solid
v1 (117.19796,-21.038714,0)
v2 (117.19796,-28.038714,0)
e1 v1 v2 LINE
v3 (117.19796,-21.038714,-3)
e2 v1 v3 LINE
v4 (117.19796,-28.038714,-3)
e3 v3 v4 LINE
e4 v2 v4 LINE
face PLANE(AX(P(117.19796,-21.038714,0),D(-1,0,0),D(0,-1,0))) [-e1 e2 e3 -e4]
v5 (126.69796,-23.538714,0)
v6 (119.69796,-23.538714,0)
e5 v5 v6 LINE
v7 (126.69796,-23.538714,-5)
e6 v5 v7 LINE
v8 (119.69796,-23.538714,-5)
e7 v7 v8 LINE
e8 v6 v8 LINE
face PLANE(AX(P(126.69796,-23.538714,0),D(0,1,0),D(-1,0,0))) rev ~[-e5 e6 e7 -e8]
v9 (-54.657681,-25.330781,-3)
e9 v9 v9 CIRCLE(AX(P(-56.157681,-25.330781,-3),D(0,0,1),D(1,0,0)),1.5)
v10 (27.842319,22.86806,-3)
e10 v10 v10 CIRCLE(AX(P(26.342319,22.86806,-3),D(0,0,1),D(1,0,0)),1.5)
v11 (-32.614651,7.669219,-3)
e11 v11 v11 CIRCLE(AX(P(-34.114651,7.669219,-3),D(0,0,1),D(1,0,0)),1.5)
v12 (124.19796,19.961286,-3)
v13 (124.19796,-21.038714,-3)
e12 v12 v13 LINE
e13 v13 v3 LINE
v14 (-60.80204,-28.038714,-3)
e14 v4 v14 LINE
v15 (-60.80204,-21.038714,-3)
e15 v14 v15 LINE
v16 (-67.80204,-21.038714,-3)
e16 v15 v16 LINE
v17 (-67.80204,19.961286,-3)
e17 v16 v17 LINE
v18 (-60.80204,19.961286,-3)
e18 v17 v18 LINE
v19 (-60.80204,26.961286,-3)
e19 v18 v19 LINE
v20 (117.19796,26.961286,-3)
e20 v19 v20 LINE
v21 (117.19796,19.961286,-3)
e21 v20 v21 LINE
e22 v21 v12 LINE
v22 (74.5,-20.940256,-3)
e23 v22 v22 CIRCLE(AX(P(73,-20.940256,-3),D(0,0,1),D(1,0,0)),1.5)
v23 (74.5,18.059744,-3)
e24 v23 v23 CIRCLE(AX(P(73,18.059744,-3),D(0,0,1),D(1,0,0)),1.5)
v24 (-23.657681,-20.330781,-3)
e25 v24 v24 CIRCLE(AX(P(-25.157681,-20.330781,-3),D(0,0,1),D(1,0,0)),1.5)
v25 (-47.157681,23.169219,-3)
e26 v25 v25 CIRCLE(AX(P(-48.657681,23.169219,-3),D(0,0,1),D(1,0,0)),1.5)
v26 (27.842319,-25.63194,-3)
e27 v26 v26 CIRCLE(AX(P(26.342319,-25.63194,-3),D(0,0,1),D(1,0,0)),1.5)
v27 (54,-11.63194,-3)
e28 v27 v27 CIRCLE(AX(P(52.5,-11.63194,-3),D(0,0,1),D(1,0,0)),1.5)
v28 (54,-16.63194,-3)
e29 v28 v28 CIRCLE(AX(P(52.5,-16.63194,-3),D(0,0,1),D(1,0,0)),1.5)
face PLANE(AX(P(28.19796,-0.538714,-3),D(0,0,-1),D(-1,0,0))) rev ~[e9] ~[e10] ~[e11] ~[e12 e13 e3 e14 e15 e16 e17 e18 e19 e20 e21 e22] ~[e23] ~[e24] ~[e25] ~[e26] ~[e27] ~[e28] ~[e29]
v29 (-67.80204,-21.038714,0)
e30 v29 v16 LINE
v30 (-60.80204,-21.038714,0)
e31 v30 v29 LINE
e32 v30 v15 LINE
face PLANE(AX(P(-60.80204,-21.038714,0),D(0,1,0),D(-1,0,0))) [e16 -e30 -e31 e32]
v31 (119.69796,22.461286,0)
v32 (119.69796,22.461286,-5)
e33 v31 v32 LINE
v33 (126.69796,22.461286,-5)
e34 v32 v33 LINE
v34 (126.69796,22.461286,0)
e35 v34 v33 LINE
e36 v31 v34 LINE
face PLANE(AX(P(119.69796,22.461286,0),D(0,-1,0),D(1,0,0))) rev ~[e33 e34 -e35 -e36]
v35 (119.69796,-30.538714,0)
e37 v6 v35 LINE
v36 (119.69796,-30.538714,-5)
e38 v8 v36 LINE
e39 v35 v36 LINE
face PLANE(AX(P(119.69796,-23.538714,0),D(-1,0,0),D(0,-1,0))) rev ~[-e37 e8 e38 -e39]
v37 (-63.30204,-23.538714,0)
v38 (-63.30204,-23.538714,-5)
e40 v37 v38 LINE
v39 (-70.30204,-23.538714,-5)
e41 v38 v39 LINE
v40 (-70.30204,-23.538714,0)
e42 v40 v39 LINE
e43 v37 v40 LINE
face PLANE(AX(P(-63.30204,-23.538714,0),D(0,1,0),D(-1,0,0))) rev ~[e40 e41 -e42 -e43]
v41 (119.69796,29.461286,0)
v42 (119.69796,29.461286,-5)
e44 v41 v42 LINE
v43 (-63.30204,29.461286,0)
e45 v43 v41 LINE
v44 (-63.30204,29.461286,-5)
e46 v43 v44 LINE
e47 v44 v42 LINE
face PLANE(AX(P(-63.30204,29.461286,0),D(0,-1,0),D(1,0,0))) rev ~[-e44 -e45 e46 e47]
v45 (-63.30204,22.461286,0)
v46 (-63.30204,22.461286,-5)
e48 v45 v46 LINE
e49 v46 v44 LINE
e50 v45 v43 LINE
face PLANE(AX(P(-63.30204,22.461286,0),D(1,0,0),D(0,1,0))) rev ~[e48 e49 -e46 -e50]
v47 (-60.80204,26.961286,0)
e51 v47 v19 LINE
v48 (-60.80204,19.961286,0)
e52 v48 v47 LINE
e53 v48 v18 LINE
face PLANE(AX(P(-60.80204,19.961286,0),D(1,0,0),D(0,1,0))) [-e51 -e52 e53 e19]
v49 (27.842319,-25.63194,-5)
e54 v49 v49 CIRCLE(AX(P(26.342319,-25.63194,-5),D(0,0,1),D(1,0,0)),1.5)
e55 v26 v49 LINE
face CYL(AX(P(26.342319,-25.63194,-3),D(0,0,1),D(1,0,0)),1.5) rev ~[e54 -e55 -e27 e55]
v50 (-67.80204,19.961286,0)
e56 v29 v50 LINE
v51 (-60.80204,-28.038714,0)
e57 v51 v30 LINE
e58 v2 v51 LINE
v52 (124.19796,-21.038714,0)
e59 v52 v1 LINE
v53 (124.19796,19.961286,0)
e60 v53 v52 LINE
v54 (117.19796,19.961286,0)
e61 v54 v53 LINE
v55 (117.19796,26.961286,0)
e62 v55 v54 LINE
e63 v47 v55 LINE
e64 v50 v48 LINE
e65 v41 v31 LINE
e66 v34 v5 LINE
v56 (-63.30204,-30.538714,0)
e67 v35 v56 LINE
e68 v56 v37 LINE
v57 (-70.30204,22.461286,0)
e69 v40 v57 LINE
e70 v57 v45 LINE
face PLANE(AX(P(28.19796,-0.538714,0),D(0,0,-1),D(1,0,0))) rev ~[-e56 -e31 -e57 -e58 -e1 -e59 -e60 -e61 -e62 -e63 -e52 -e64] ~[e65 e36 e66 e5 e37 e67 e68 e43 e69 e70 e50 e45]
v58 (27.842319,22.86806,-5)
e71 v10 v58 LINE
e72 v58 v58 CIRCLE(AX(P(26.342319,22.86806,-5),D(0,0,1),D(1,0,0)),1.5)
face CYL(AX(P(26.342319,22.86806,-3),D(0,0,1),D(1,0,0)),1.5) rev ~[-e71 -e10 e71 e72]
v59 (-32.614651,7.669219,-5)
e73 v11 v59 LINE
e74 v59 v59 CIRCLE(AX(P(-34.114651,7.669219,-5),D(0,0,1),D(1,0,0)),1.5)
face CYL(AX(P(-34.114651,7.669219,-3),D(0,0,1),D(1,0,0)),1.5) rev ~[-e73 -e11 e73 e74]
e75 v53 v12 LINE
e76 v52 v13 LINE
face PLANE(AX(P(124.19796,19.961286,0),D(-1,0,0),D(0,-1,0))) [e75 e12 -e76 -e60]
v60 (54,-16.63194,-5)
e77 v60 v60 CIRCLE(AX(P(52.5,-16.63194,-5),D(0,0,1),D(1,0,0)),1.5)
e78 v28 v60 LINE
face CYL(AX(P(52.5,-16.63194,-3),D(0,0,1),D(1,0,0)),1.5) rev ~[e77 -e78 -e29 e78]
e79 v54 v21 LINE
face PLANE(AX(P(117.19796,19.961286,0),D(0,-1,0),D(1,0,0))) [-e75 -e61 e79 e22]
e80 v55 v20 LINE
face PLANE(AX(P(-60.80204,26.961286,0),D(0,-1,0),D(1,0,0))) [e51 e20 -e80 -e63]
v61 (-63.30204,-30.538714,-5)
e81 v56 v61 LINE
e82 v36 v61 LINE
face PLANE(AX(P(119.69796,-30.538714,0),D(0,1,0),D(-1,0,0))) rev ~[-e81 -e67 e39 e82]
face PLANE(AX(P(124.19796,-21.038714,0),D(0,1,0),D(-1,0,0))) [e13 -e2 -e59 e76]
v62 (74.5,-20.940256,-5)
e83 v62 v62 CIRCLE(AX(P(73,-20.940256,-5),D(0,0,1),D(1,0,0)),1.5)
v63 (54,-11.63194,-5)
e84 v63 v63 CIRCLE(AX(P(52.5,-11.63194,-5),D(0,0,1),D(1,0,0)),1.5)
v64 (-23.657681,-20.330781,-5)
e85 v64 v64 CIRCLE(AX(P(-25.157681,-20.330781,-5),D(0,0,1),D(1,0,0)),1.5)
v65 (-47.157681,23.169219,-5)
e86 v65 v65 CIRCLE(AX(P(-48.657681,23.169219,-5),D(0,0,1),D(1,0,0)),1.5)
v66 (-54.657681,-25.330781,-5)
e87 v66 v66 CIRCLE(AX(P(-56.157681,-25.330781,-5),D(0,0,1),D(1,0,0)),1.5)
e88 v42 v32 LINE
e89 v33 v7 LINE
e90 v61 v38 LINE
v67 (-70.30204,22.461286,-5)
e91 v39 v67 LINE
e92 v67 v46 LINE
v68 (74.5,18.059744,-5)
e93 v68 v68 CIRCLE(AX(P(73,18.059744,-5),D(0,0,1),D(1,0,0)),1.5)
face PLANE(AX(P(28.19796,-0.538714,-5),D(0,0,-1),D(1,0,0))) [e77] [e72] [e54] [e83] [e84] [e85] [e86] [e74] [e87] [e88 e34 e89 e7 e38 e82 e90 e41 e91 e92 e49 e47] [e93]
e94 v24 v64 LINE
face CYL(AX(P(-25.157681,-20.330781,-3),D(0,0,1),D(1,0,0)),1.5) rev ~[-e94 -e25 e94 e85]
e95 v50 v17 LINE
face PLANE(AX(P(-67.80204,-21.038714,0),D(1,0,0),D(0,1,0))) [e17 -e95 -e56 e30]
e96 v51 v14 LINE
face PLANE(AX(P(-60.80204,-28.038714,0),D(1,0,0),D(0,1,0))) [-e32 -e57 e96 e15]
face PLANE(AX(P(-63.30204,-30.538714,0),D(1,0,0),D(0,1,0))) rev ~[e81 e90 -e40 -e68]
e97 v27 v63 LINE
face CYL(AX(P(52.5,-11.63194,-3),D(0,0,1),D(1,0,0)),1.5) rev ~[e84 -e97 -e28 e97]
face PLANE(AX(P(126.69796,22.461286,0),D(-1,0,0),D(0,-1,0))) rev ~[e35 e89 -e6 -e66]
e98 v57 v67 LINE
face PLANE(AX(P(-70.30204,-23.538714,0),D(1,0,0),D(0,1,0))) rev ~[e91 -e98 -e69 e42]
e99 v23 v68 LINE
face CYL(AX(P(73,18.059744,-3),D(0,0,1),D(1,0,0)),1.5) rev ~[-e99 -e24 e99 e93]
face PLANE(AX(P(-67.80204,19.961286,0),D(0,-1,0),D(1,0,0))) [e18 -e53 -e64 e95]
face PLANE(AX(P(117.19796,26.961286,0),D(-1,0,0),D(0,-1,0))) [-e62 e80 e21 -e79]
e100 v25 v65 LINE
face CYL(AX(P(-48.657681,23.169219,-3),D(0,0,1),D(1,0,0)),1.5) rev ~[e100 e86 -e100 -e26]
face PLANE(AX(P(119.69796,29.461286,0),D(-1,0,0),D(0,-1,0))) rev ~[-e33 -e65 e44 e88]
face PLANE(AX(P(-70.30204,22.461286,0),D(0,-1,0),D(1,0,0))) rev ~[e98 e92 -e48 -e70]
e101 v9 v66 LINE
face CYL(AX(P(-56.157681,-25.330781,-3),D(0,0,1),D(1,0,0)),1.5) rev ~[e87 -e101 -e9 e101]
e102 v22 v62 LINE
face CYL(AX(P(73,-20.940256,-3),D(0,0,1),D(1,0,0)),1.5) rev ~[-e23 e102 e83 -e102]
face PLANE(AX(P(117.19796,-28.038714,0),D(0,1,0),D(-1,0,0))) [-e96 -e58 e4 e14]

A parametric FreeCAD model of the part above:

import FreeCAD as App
import Part
import Sketcher

doc = App.newDocument("Part")
params = doc.addObject("Spreadsheet::Sheet", "Params")
for row, (alias, value) in enumerate([
    ("sketch1_width", "7 mm"),
    ("sketch1_width2", "183 mm"),
    ("sketch1_height", "46 mm"),
    ("pad1_length", "5 mm"),
    ("sketch2_width", "178 mm"),
    ("sketch2_width2", "7 mm"),
    ("sketch2_height", "41 mm"),
    ("pocket1_length", "3 mm"),
    ("sketch3_diameter", "3 mm"),
    ("pocket2_length", "10 mm"),
], start=1):
    params.set(f"A{row}", alias)
    params.set(f"B{row}", "=" + value)
    params.setAlias(f"B{row}", alias)

body = doc.addObject("PartDesign::Body", "Body")

# Sketch on XY plane
sketch1 = doc.addObject("Sketcher::SketchObject", "Sketch")
body.addObject(sketch1)
sketch1.AttachmentSupport = (doc.XY_Plane, [""])
sketch1.MapMode = "FlatFace"
sketch1.addGeometry(Part.LineSegment(App.Vector(-63.30204, -23.538714, 0), App.Vector(-70.30204, -23.538714, 0)), False)
sketch1.addGeometry(Part.LineSegment(App.Vector(-70.30204, -23.538714, 0), App.Vector(-70.30204, 22.461286, 0)), False)
sketch1.addGeometry(Part.LineSegment(App.Vector(-70.30204, 22.461286, 0), App.Vector(-63.30204, 22.461286, 0)), False)
sketch1.addGeometry(Part.LineSegment(App.Vector(-63.30204, 22.461286, 0), App.Vector(-63.30204, 29.461286, 0)), False)
sketch1.addGeometry(Part.LineSegment(App.Vector(-63.30204, 29.461286, 0), App.Vector(119.69796, 29.461286, 0)), False)
sketch1.addGeometry(Part.LineSegment(App.Vector(119.69796, 29.461286, 0), App.Vector(119.69796, 22.461286, 0)), False)
sketch1.addGeometry(Part.LineSegment(App.Vector(119.69796, 22.461286, 0), App.Vector(126.69796, 22.461286, 0)), False)
sketch1.addGeometry(Part.LineSegment(App.Vector(126.69796, 22.461286, 0), App.Vector(126.69796, -23.538714, 0)), False)
sketch1.addGeometry(Part.LineSegment(App.Vector(126.69796, -23.538714, 0), App.Vector(119.69796, -23.538714, 0)), False)
sketch1.addGeometry(Part.LineSegment(App.Vector(119.69796, -23.538714, 0), App.Vector(119.69796, -30.538714, 0)), False)
sketch1.addGeometry(Part.LineSegment(App.Vector(119.69796, -30.538714, 0), App.Vector(-63.30204, -30.538714, 0)), False)
sketch1.addGeometry(Part.LineSegment(App.Vector(-63.30204, -30.538714, 0), App.Vector(-63.30204, -23.538714, 0)), False)
sketch1.addConstraint(Sketcher.Constraint("Coincident", 0, 2, 1, 1))
sketch1.addConstraint(Sketcher.Constraint("Coincident", 1, 2, 2, 1))
sketch1.addConstraint(Sketcher.Constraint("Coincident", 2, 2, 3, 1))
sketch1.addConstraint(Sketcher.Constraint("Coincident", 3, 2, 4, 1))
sketch1.addConstraint(Sketcher.Constraint("Coincident", 4, 2, 5, 1))
sketch1.addConstraint(Sketcher.Constraint("Coincident", 5, 2, 6, 1))
sketch1.addConstraint(Sketcher.Constraint("Coincident", 6, 2, 7, 1))
sketch1.addConstraint(Sketcher.Constraint("Coincident", 7, 2, 8, 1))
sketch1.addConstraint(Sketcher.Constraint("Coincident", 8, 2, 9, 1))
sketch1.addConstraint(Sketcher.Constraint("Coincident", 9, 2, 10, 1))
sketch1.addConstraint(Sketcher.Constraint("Coincident", 10, 2, 11, 1))
sketch1.addConstraint(Sketcher.Constraint("Coincident", 11, 2, 0, 1))
sketch1.addConstraint(Sketcher.Constraint("Horizontal", 0))
sketch1.addConstraint(Sketcher.Constraint("Vertical", 1))
sketch1.addConstraint(Sketcher.Constraint("Horizontal", 2))
sketch1.addConstraint(Sketcher.Constraint("Vertical", 3))
sketch1.addConstraint(Sketcher.Constraint("Horizontal", 4))
sketch1.addConstraint(Sketcher.Constraint("Vertical", 5))
sketch1.addConstraint(Sketcher.Constraint("Horizontal", 6))
sketch1.addConstraint(Sketcher.Constraint("Vertical", 7))
sketch1.addConstraint(Sketcher.Constraint("Horizontal", 8))
sketch1.addConstraint(Sketcher.Constraint("Vertical", 9))
sketch1.addConstraint(Sketcher.Constraint("Horizontal", 10))
sketch1.addConstraint(Sketcher.Constraint("Vertical", 11))
sketch1.addConstraint(Sketcher.Constraint("Horizontal", 2, 2, 5, 2))
sketch1.addConstraint(Sketcher.Constraint("Horizontal", 0, 2, 7, 2))
sketch1.addConstraint(Sketcher.Constraint("Vertical", 5, 2, 8, 2))
sketch1.addConstraint(Sketcher.Constraint("Vertical", 3, 2, 10, 2))
sketch1.addConstraint(Sketcher.Constraint("Equal", 2, 6))
sketch1.addConstraint(Sketcher.Constraint("Equal", 8, 3))
sketch1.addConstraint(Sketcher.Constraint("Equal", 5, 9))
sketch1.addConstraint(Sketcher.Constraint("DistanceX", 0, 2, 0, 1, 7.0))
sketch1.addConstraint(Sketcher.Constraint("DistanceX", 4, 1, 4, 2, 183.0))
sketch1.addConstraint(Sketcher.Constraint("DistanceY", 1, 1, 1, 2, 46.0))
sketch1.addConstraint(Sketcher.Constraint("DistanceX", 0, 2, -1, 1, 70.30204))
sketch1.addConstraint(Sketcher.Constraint("DistanceY", 0, 2, -1, 1, 23.538714))
sketch1.setExpression("Constraints[31]", "Params.sketch1_width")
sketch1.setExpression("Constraints[32]", "Params.sketch1_width2")
sketch1.setExpression("Constraints[33]", "Params.sketch1_height")
pad1 = doc.addObject("PartDesign::Pad", "Pad")
body.addObject(pad1)
pad1.Profile = sketch1
pad1.setExpression("Length", "Params.pad1_length")
pad1.Reversed = True

# Sketch on XY plane
sketch2 = doc.addObject("Sketcher::SketchObject", "Sketch001")
body.addObject(sketch2)
sketch2.AttachmentSupport = (doc.XY_Plane, [""])
sketch2.MapMode = "FlatFace"
sketch2.addGeometry(Part.LineSegment(App.Vector(-60.80204, -21.038714, 0), App.Vector(-60.80204, -28.038714, 0)), False)
sketch2.addGeometry(Part.LineSegment(App.Vector(-60.80204, -28.038714, 0), App.Vector(117.19796, -28.038714, 0)), False)
sketch2.addGeometry(Part.LineSegment(App.Vector(117.19796, -28.038714, 0), App.Vector(117.19796, -21.038714, 0)), False)
sketch2.addGeometry(Part.LineSegment(App.Vector(117.19796, -21.038714, 0), App.Vector(124.19796, -21.038714, 0)), False)
sketch2.addGeometry(Part.LineSegment(App.Vector(124.19796, -21.038714, 0), App.Vector(124.19796, 19.961286, 0)), False)
sketch2.addGeometry(Part.LineSegment(App.Vector(124.19796, 19.961286, 0), App.Vector(117.19796, 19.961286, 0)), False)
sketch2.addGeometry(Part.LineSegment(App.Vector(117.19796, 19.961286, 0), App.Vector(117.19796, 26.961286, 0)), False)
sketch2.addGeometry(Part.LineSegment(App.Vector(117.19796, 26.961286, 0), App.Vector(-60.80204, 26.961286, 0)), False)
sketch2.addGeometry(Part.LineSegment(App.Vector(-60.80204, 26.961286, 0), App.Vector(-60.80204, 19.961286, 0)), False)
sketch2.addGeometry(Part.LineSegment(App.Vector(-60.80204, 19.961286, 0), App.Vector(-67.80204, 19.961286, 0)), False)
sketch2.addGeometry(Part.LineSegment(App.Vector(-67.80204, 19.961286, 0), App.Vector(-67.80204, -21.038714, 0)), False)
sketch2.addGeometry(Part.LineSegment(App.Vector(-67.80204, -21.038714, 0), App.Vector(-60.80204, -21.038714, 0)), False)
sketch2.addConstraint(Sketcher.Constraint("Coincident", 0, 2, 1, 1))
sketch2.addConstraint(Sketcher.Constraint("Coincident", 1, 2, 2, 1))
sketch2.addConstraint(Sketcher.Constraint("Coincident", 2, 2, 3, 1))
sketch2.addConstraint(Sketcher.Constraint("Coincident", 3, 2, 4, 1))
sketch2.addConstraint(Sketcher.Constraint("Coincident", 4, 2, 5, 1))
sketch2.addConstraint(Sketcher.Constraint("Coincident", 5, 2, 6, 1))
sketch2.addConstraint(Sketcher.Constraint("Coincident", 6, 2, 7, 1))
sketch2.addConstraint(Sketcher.Constraint("Coincident", 7, 2, 8, 1))
sketch2.addConstraint(Sketcher.Constraint("Coincident", 8, 2, 9, 1))
sketch2.addConstraint(Sketcher.Constraint("Coincident", 9, 2, 10, 1))
sketch2.addConstraint(Sketcher.Constraint("Coincident", 10, 2, 11, 1))
sketch2.addConstraint(Sketcher.Constraint("Coincident", 11, 2, 0, 1))
sketch2.addConstraint(Sketcher.Constraint("Vertical", 0))
sketch2.addConstraint(Sketcher.Constraint("Horizontal", 1))
sketch2.addConstraint(Sketcher.Constraint("Vertical", 2))
sketch2.addConstraint(Sketcher.Constraint("Horizontal", 3))
sketch2.addConstraint(Sketcher.Constraint("Vertical", 4))
sketch2.addConstraint(Sketcher.Constraint("Horizontal", 5))
sketch2.addConstraint(Sketcher.Constraint("Vertical", 6))
sketch2.addConstraint(Sketcher.Constraint("Horizontal", 7))
sketch2.addConstraint(Sketcher.Constraint("Vertical", 8))
sketch2.addConstraint(Sketcher.Constraint("Horizontal", 9))
sketch2.addConstraint(Sketcher.Constraint("Vertical", 10))
sketch2.addConstraint(Sketcher.Constraint("Horizontal", 11))
sketch2.addConstraint(Sketcher.Constraint("Horizontal", 5, 2, 8, 2))
sketch2.addConstraint(Sketcher.Constraint("Horizontal", 3, 2, 10, 2))
sketch2.addConstraint(Sketcher.Constraint("Vertical", 2, 2, 5, 2))
sketch2.addConstraint(Sketcher.Constraint("Vertical", 0, 2, 7, 2))
sketch2.addConstraint(Sketcher.Constraint("Equal", 5, 9))
sketch2.addConstraint(Sketcher.Constraint("Equal", 11, 0))
sketch2.addConstraint(Sketcher.Constraint("Equal", 2, 6))
sketch2.addConstraint(Sketcher.Constraint("DistanceX", 1, 1, 1, 2, 178.0))
sketch2.addConstraint(Sketcher.Constraint("DistanceX", 3, 1, 3, 2, 7.0))
sketch2.addConstraint(Sketcher.Constraint("DistanceY", 4, 1, 4, 2, 41.0))
sketch2.addConstraint(Sketcher.Constraint("DistanceX", 0, 2, -1, 1, 60.80204))
sketch2.addConstraint(Sketcher.Constraint("DistanceY", 0, 2, -1, 1, 28.038714))
sketch2.setExpression("Constraints[31]", "Params.sketch2_width")
sketch2.setExpression("Constraints[32]", "Params.sketch2_width2")
sketch2.setExpression("Constraints[33]", "Params.sketch2_height")
pocket1 = doc.addObject("PartDesign::Pocket", "Pocket")
body.addObject(pocket1)
pocket1.Profile = sketch2
pocket1.setExpression("Length", "Params.pocket1_length")

# Sketch on XY plane
sketch3 = doc.addObject("Sketcher::SketchObject", "Sketch002")
body.addObject(sketch3)
sketch3.AttachmentSupport = (doc.XY_Plane, [""])
sketch3.MapMode = "FlatFace"
sketch3.AttachmentOffset = App.Placement(App.Vector(0, 0, -3), App.Rotation())
sketch3.addGeometry(Part.Circle(App.Vector(-48.657681, 23.169219, 0), App.Vector(0, 0, 1), 1.5), False)
sketch3.addGeometry(Part.Circle(App.Vector(-34.114651, 7.669219, 0), App.Vector(0, 0, 1), 1.5), False)
sketch3.addGeometry(Part.Circle(App.Vector(26.342319, 22.86806, 0), App.Vector(0, 0, 1), 1.5), False)
sketch3.addGeometry(Part.Circle(App.Vector(-25.157681, -20.330781, 0), App.Vector(0, 0, 1), 1.5), False)
sketch3.addGeometry(Part.Circle(App.Vector(-56.157681, -25.330781, 0), App.Vector(0, 0, 1), 1.5), False)
sketch3.addGeometry(Part.Circle(App.Vector(26.342319, -25.63194, 0), App.Vector(0, 0, 1), 1.5), False)
sketch3.addGeometry(Part.Circle(App.Vector(52.5, -11.63194, 0), App.Vector(0, 0, 1), 1.5), False)
sketch3.addGeometry(Part.Circle(App.Vector(52.5, -16.63194, 0), App.Vector(0, 0, 1), 1.5), False)
sketch3.addGeometry(Part.Circle(App.Vector(73, 18.059744, 0), App.Vector(0, 0, 1), 1.5), False)
sketch3.addGeometry(Part.Circle(App.Vector(73, -20.940256, 0), App.Vector(0, 0, 1), 1.5), False)
sketch3.addConstraint(Sketcher.Constraint("Equal", 0, 1))
sketch3.addConstraint(Sketcher.Constraint("Equal", 1, 2))
sketch3.addConstraint(Sketcher.Constraint("Equal", 2, 3))
sketch3.addConstraint(Sketcher.Constraint("Equal", 3, 4))
sketch3.addConstraint(Sketcher.Constraint("Equal", 4, 5))
sketch3.addConstraint(Sketcher.Constraint("Equal", 5, 6))
sketch3.addConstraint(Sketcher.Constraint("Equal", 6, 7))
sketch3.addConstraint(Sketcher.Constraint("Equal", 7, 8))
sketch3.addConstraint(Sketcher.Constraint("Equal", 8, 9))
sketch3.addConstraint(Sketcher.Constraint("Vertical", 2, 3, 5, 3))
sketch3.addConstraint(Sketcher.Constraint("Vertical", 6, 3, 7, 3))
sketch3.addConstraint(Sketcher.Constraint("Vertical", 8, 3, 9, 3))
sketch3.addConstraint(Sketcher.Constraint("Diameter", 0, 3.0))
sketch3.addConstraint(Sketcher.Constraint("DistanceX", -1, 1, 8, 3, 73.0))
sketch3.addConstraint(Sketcher.Constraint("DistanceX", 0, 3, 2, 3, 75.0))
sketch3.addConstraint(Sketcher.Constraint("DistanceY", 3, 3, 1, 3, 28.0))
sketch3.addConstraint(Sketcher.Constraint("DistanceX", 4, 3, 3, 3, 31.0))
sketch3.addConstraint(Sketcher.Constraint("DistanceY", 4, 3, 3, 3, 5.0))
sketch3.addConstraint(Sketcher.Constraint("DistanceY", 5, 3, 6, 3, 14.0))
sketch3.addConstraint(Sketcher.Constraint("DistanceY", 7, 3, 6, 3, 5.0))
sketch3.addConstraint(Sketcher.Constraint("DistanceY", 9, 3, 8, 3, 39.0))
sketch3.addConstraint(Sketcher.Constraint("DistanceX", -1, 1, 6, 3, 52.5))
sketch3.addConstraint(Sketcher.Constraint("DistanceY", 1, 3, 0, 3, 15.5))
sketch3.addConstraint(Sketcher.Constraint("DistanceX", 0, 3, 3, 3, 23.5))
sketch3.addConstraint(Sketcher.Constraint("DistanceY", 5, 3, 2, 3, 48.5))
sketch3.addConstraint(Sketcher.Constraint("DistanceX", 0, 3, -1, 1, 48.657681))
sketch3.addConstraint(Sketcher.Constraint("DistanceY", -1, 1, 0, 3, 23.169219))
sketch3.addConstraint(Sketcher.Constraint("DistanceX", 1, 3, -1, 1, 34.114651))
sketch3.addConstraint(Sketcher.Constraint("DistanceY", -1, 1, 2, 3, 22.86806))
sketch3.addConstraint(Sketcher.Constraint("DistanceY", -1, 1, 8, 3, 18.059744))
sketch3.setExpression("Constraints[12]", "Params.sketch3_diameter")
pocket2 = doc.addObject("PartDesign::Pocket", "Pocket001")
body.addObject(pocket2)
pocket2.Profile = sketch3
pocket2.setExpression("Length", "Params.pocket2_length")

doc.recompute()
